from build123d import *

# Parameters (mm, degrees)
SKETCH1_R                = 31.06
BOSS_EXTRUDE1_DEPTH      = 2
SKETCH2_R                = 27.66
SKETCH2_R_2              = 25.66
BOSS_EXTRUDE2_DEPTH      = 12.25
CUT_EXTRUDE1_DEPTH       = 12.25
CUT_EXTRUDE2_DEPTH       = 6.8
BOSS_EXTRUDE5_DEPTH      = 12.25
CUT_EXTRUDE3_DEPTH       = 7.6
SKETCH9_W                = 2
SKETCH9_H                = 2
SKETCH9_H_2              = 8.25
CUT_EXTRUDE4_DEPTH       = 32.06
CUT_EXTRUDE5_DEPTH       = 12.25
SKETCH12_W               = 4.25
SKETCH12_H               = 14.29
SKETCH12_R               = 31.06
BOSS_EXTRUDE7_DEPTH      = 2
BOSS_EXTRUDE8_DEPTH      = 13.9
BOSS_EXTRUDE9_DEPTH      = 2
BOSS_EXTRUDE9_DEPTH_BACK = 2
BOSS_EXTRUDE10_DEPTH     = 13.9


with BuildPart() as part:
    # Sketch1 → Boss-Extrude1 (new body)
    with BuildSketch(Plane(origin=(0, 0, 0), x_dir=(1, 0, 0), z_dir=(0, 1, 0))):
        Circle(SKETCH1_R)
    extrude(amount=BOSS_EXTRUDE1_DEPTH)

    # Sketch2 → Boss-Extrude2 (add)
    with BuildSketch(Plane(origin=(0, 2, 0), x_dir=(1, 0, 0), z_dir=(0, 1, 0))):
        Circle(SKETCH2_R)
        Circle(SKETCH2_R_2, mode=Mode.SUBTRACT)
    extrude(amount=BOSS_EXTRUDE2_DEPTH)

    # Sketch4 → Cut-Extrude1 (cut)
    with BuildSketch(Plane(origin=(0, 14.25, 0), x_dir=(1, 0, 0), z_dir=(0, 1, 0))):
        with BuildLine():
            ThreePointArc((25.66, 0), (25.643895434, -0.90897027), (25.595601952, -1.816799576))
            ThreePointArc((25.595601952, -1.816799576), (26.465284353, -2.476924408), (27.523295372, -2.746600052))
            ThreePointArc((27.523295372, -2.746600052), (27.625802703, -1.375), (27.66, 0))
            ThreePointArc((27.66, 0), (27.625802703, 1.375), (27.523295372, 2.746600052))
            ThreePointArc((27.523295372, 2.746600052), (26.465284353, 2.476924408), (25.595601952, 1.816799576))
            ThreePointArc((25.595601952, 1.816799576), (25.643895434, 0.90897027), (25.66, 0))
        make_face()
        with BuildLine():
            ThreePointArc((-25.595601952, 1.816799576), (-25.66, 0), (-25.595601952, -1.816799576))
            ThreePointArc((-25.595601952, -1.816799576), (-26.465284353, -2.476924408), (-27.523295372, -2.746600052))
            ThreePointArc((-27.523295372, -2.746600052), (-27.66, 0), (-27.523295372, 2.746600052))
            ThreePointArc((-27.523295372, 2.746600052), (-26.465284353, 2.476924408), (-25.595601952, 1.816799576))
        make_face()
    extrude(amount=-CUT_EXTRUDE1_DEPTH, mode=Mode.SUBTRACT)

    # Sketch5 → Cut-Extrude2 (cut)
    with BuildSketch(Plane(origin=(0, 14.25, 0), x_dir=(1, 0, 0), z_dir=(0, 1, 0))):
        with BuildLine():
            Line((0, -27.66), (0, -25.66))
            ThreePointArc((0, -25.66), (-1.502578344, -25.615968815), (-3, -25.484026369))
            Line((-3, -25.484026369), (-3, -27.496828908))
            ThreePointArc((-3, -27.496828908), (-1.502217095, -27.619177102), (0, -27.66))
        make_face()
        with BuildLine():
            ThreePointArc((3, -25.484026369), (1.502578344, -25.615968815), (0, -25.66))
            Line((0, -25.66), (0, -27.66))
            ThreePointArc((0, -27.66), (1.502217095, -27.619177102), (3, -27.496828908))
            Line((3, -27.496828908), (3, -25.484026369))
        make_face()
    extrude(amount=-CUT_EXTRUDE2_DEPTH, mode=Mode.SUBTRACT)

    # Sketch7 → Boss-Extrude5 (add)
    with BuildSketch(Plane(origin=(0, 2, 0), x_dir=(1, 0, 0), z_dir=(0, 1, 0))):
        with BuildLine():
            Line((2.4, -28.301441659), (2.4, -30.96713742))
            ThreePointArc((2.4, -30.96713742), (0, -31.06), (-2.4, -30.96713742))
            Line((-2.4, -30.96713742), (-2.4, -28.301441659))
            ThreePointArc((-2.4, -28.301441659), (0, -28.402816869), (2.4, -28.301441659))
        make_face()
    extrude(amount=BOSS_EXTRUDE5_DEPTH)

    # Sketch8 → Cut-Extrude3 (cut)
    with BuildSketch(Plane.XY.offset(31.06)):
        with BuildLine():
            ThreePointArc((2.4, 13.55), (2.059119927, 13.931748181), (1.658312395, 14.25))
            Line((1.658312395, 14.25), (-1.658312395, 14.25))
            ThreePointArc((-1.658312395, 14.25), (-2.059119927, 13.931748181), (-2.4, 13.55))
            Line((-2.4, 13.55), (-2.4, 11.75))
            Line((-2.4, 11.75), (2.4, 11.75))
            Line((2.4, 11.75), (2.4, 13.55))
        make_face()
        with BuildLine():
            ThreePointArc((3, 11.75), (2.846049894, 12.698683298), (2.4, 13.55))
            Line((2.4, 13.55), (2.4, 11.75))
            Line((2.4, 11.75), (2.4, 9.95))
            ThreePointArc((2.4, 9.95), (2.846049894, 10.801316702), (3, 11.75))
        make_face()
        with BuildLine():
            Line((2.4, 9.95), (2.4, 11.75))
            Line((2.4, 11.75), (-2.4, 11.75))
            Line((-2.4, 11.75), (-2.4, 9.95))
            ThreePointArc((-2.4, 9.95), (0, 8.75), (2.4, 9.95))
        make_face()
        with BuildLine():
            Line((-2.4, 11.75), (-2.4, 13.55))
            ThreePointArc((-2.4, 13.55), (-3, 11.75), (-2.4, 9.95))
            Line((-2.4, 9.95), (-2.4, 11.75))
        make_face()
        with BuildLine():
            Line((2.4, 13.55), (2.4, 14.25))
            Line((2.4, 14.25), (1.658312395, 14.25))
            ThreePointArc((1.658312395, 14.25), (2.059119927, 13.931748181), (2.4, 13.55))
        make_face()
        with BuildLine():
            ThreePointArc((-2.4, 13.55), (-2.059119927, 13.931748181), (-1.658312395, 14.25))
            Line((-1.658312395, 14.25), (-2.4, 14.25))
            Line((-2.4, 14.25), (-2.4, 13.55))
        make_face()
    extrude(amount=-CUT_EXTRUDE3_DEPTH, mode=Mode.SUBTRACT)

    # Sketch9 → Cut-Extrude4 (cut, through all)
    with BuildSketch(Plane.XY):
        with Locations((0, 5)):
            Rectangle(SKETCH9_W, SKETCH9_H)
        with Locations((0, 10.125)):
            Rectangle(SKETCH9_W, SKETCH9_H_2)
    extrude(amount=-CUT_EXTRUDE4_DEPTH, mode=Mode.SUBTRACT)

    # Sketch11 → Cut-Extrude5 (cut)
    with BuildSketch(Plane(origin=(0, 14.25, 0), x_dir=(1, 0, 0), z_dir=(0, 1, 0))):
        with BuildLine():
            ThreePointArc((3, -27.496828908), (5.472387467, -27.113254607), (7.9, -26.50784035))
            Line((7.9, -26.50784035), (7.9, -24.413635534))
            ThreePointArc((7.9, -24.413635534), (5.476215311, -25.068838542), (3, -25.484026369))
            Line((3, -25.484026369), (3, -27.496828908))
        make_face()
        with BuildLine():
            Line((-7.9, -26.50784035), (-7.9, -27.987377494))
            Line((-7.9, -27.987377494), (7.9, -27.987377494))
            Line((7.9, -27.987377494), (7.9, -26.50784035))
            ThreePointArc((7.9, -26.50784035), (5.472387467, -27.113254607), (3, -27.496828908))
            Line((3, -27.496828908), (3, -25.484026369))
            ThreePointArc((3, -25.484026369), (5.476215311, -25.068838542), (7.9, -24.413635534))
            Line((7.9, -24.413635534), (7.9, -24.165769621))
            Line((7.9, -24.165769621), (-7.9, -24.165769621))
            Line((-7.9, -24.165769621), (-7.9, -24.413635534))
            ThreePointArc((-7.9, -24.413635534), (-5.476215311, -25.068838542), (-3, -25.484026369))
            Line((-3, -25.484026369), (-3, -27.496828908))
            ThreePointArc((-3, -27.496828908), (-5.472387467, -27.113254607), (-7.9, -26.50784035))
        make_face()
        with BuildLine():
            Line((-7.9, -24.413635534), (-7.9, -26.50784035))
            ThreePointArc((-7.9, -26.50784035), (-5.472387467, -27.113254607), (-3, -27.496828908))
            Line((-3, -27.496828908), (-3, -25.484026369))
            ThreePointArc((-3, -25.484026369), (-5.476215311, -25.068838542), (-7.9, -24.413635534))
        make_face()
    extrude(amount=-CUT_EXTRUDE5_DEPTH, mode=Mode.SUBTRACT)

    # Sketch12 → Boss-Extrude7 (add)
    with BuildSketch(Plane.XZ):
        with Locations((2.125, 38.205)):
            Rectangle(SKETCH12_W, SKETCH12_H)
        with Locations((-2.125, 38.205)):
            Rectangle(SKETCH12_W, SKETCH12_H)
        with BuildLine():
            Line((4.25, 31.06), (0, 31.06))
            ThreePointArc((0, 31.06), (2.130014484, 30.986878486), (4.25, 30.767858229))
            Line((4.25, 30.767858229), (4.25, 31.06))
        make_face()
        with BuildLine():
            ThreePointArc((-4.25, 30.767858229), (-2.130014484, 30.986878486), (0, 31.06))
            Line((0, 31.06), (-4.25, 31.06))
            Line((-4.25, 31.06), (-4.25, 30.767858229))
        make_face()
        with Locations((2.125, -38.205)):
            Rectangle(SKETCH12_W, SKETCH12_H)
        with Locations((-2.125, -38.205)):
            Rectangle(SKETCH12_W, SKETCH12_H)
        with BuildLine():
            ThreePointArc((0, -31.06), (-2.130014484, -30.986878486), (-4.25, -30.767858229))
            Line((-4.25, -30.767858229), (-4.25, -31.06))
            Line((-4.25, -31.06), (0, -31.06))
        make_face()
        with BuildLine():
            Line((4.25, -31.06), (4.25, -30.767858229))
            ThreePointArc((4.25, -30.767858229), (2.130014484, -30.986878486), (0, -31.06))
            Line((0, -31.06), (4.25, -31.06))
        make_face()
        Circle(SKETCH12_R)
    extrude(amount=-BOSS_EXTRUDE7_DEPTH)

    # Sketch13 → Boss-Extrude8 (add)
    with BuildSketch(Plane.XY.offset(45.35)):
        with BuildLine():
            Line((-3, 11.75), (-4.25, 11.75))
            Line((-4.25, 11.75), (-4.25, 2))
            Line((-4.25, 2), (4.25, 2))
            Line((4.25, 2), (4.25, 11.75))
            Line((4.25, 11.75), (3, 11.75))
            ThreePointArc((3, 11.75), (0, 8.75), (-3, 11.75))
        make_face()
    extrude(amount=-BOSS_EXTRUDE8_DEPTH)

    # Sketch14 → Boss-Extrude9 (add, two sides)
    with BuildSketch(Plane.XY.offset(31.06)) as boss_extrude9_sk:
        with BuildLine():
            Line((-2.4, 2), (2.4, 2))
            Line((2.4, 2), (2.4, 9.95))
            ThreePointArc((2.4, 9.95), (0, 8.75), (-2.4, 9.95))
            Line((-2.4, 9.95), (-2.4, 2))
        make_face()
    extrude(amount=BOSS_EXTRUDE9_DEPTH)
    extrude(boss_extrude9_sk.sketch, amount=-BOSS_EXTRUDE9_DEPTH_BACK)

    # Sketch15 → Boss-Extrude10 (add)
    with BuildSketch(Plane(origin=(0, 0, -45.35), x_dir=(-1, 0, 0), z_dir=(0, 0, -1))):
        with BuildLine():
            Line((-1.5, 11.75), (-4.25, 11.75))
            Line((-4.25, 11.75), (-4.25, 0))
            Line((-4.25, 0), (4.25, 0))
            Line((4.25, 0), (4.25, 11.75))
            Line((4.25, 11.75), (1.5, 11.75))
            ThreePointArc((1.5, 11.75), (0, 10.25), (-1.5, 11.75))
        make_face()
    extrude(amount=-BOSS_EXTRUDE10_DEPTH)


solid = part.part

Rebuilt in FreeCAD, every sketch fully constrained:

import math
import FreeCAD as App
import Part
import Sketcher

doc = App.newDocument("Part")
body = doc.addObject("PartDesign::Body", "Body")

sketch1 = body.newObject("Sketcher::SketchObject", "Sketch")
sketch1.AttachmentSupport = (doc.getObject("XZ_Plane"), [""])
sketch1.MapMode = "FlatFace"
sketch1.addGeometry(Part.Circle(App.Vector(0, 0, 0), App.Vector(0, 0, 1), 31), False)
sketch1.addConstraint(Sketcher.Constraint("Coincident", 0, 3, -1, 1))
sketch1.addConstraint(Sketcher.Constraint("Diameter", 0, 62.12))
pad1 = body.newObject("PartDesign::Pad", "Pad")
pad1.Profile = sketch1
pad1.Length = 2
pad1.Reversed = True

sketch2 = body.newObject("Sketcher::SketchObject", "Sketch001")
sketch2.AttachmentSupport = (doc.getObject("XZ_Plane"), [""])
sketch2.MapMode = "FlatFace"
sketch2.AttachmentOffset = App.Placement(App.Vector(0, 0, -2), App.Rotation())
sketch2.addGeometry(Part.Circle(App.Vector(0, 0, 0), App.Vector(0, 0, 1), 28), False)
sketch2.addGeometry(Part.Circle(App.Vector(0, 0, 0), App.Vector(0, 0, 1), 26), False)
sketch2.addConstraint(Sketcher.Constraint("Coincident", 0, 3, -1, 1))
sketch2.addConstraint(Sketcher.Constraint("Coincident", 1, 3, -1, 1))
sketch2.addConstraint(Sketcher.Constraint("Diameter", 0, 55.32))
sketch2.addConstraint(Sketcher.Constraint("Diameter", 1, 51.32))
pad2 = body.newObject("PartDesign::Pad", "Pad001")
pad2.Profile = sketch2
pad2.Length = 12.25
pad2.Reversed = True

sketch3 = body.newObject("Sketcher::SketchObject", "Sketch002")
sketch3.AttachmentSupport = (doc.getObject("XZ_Plane"), [""])
sketch3.MapMode = "FlatFace"
sketch3.AttachmentOffset = App.Placement(App.Vector(0, 0, -14.25), App.Rotation())
sketch3.addGeometry(Part.ArcOfCircle(Part.Circle(App.Vector(0, 0, 0), App.Vector(0, 0, 1), 25.7), math.radians(0), math.radians(4.06)), False)
sketch3.addGeometry(Part.ArcOfCircle(Part.Circle(App.Vector(27.7, 0, 0), App.Vector(0, 0, 1), 2.8), math.radians(93), math.radians(139)), False)
sketch3.addGeometry(Part.ArcOfCircle(Part.Circle(App.Vector(0, 0, 0), App.Vector(0, 0, 1), 27.7), math.radians(0), math.radians(5.7)), False)
sketch3.addGeometry(Part.ArcOfCircle(Part.Circle(App.Vector(0, 0, 0), App.Vector(0, 0, 1), 27.7), math.radians(-5.7), math.radians(0)), False)
sketch3.addGeometry(Part.ArcOfCircle(Part.Circle(App.Vector(27.7, 0, 0), App.Vector(0, 0, 1), 2.8), math.radians(-139), math.radians(-93)), False)
sketch3.addGeometry(Part.ArcOfCircle(Part.Circle(App.Vector(0, 0, 0), App.Vector(0, 0, 1), 25.7), math.radians(-4.06), math.radians(0)), False)
sketch3.addGeometry(Part.ArcOfCircle(Part.Circle(App.Vector(0, 0, 0), App.Vector(0, 0, 1), 25.7), math.radians(175.94), math.radians(184.06)), False)
sketch3.addGeometry(Part.ArcOfCircle(Part.Circle(App.Vector(-27.7, 0, 0), App.Vector(0, 0, 1), 2.8), math.radians(-87), math.radians(-41)), False)
sketch3.addGeometry(Part.ArcOfCircle(Part.Circle(App.Vector(0, 0, 0), App.Vector(0, 0, 1), 27.7), math.radians(174.3), math.radians(185.7)), False)
sketch3.addGeometry(Part.ArcOfCircle(Part.Circle(App.Vector(-27.7, 0, 0), App.Vector(0, 0, 1), 2.8), math.radians(41), math.radians(87)), False)
sketch3.addConstraint(Sketcher.Constraint("Coincident", 0, 2, 1, 2))
sketch3.addConstraint(Sketcher.Constraint("Coincident", 1, 1, 2, 2))
sketch3.addConstraint(Sketcher.Constraint("Tangent", 2, 1, 3, 2))
sketch3.addConstraint(Sketcher.Constraint("Coincident", 3, 1, 4, 2))
sketch3.addConstraint(Sketcher.Constraint("Coincident", 4, 1, 5, 1))
sketch3.addConstraint(Sketcher.Constraint("Tangent", 5, 2, 0, 1))
sketch3.addConstraint(Sketcher.Constraint("Coincident", 6, 2, 7, 2))
sketch3.addConstraint(Sketcher.Constraint("Coincident", 7, 1, 8, 2))
sketch3.addConstraint(Sketcher.Constraint("Coincident", 8, 1, 9, 2))
sketch3.addConstraint(Sketcher.Constraint("Coincident", 9, 1, 6, 1))
sketch3.addConstraint(Sketcher.Constraint("Coincident", 0, 3, -1, 1))
sketch3.addConstraint(Sketcher.Constraint("Coincident", 2, 3, -1, 1))
sketch3.addConstraint(Sketcher.Constraint("Coincident", 6, 3, -1, 1))
sketch3.addConstraint(Sketcher.Constraint("Coincident", 8, 3, -1, 1))
sketch3.addConstraint(Sketcher.Constraint("Coincident", 4, 3, 1, 3))
sketch3.addConstraint(Sketcher.Constraint("Coincident", 9, 3, 7, 3))
sketch3.addConstraint(Sketcher.Constraint("Coincident", 2, 1, 1, 3))
sketch3.addConstraint(Sketcher.Constraint("Equal", 2, 3))
sketch3.addConstraint(Sketcher.Constraint("Equal", 1, 4))
sketch3.addConstraint(Sketcher.Constraint("Equal", 0, 5))
sketch3.addConstraint(Sketcher.Constraint("Equal", 5, 6))
sketch3.addConstraint(Sketcher.Constraint("Equal", 4, 7))
sketch3.addConstraint(Sketcher.Constraint("Equal", 3, 8))
sketch3.addConstraint(Sketcher.Constraint("Equal", 7, 9))
sketch3.addConstraint(Sketcher.Constraint("Symmetric", 1, 3, 7, 3, -1, 1))
sketch3.addConstraint(Sketcher.Constraint("PointOnObject", 1, 3, -1))
sketch3.addConstraint(Sketcher.Constraint("PointOnObject", 5, 2, -1))
sketch3.addConstraint(Sketcher.Constraint("Radius", 0, 25.66))
sketch3.addConstraint(Sketcher.Constraint("Radius", 1, 2.75))
sketch3.addConstraint(Sketcher.Constraint("Radius", 2, 27.66))
pocket1 = body.newObject("PartDesign::Pocket", "Pocket")
pocket1.Profile = sketch3
pocket1.Length = 12.25
pocket1.Reversed = True

sketch4 = body.newObject("Sketcher::SketchObject", "Sketch003")
sketch4.AttachmentSupport = (doc.getObject("XZ_Plane"), [""])
sketch4.MapMode = "FlatFace"
sketch4.AttachmentOffset = App.Placement(App.Vector(0, 0, -14.25), App.Rotation())
sketch4.addGeometry(Part.ArcOfCircle(Part.Circle(App.Vector(0, 0, 0), App.Vector(0, 0, 1), 25.7), math.radians(90), math.radians(96.71)), False)
sketch4.addGeometry(Part.LineSegment(App.Vector(-3, 25.5, 0), App.Vector(-3, 27.5, 0)), False)
sketch4.addGeometry(Part.ArcOfCircle(Part.Circle(App.Vector(0, 0, 0), App.Vector(0, 0, 1), 27.7), math.radians(90), math.radians(96.23)), False)
sketch4.addGeometry(Part.ArcOfCircle(Part.Circle(App.Vector(0, 0, 0), App.Vector(0, 0, 1), 27.7), math.radians(83.77), math.radians(90)), False)
sketch4.addGeometry(Part.LineSegment(App.Vector(3, 27.5, 0), App.Vector(3, 25.5, 0)), False)
sketch4.addGeometry(Part.ArcOfCircle(Part.Circle(App.Vector(0, 0, 0), App.Vector(0, 0, 1), 25.7), math.radians(83.29), math.radians(90)), False)
sketch4.addConstraint(Sketcher.Constraint("Coincident", 0, 2, 1, 1))
sketch4.addConstraint(Sketcher.Constraint("Coincident", 1, 2, 2, 2))
sketch4.addConstraint(Sketcher.Constraint("Tangent", 2, 1, 3, 2))
sketch4.addConstraint(Sketcher.Constraint("Coincident", 3, 1, 4, 1))
sketch4.addConstraint(Sketcher.Constraint("Coincident", 4, 2, 5, 1))
sketch4.addConstraint(Sketcher.Constraint("Tangent", 5, 2, 0, 1))
sketch4.addConstraint(Sketcher.Constraint("Vertical", 1))
sketch4.addConstraint(Sketcher.Constraint("Vertical", 4))
sketch4.addConstraint(Sketcher.Constraint("Coincident", 0, 3, -1, 1))
sketch4.addConstraint(Sketcher.Constraint("Coincident", 2, 3, -1, 1))
sketch4.addConstraint(Sketcher.Constraint("Equal", 2, 3))
sketch4.addConstraint(Sketcher.Constraint("Equal", 0, 5))
sketch4.addConstraint(Sketcher.Constraint("PointOnObject", 2, 1, -2))
sketch4.addConstraint(Sketcher.Constraint("PointOnObject", 5, 2, -2))
sketch4.addConstraint(Sketcher.Constraint("Horizontal", 1, 2, 3, 1))
sketch4.addConstraint(Sketcher.Constraint("Radius", 0, 25.66))
sketch4.addConstraint(Sketcher.Constraint("Radius", 2, 27.66))
sketch4.addConstraint(Sketcher.Constraint("DistanceX", 0, 2, -1, 1, 3.0))
pocket2 = body.newObject("PartDesign::Pocket", "Pocket001")
pocket2.Profile = sketch4
pocket2.Length = 6.8
pocket2.Reversed = True

sketch5 = body.newObject("Sketcher::SketchObject", "Sketch004")
sketch5.AttachmentSupport = (doc.getObject("XZ_Plane"), [""])
sketch5.MapMode = "FlatFace"
sketch5.AttachmentOffset = App.Placement(App.Vector(0, 0, -2), App.Rotation())
sketch5.addGeometry(Part.LineSegment(App.Vector(2.4, 31, 0), App.Vector(2.4, 28.3, 0)), False)
sketch5.addGeometry(Part.ArcOfCircle(Part.Circle(App.Vector(0, -0.1, 0), App.Vector(0, 0, 1), 28.5), math.radians(85.16), math.radians(94.84)), False)
sketch5.addGeometry(Part.LineSegment(App.Vector(-2.4, 28.3, 0), App.Vector(-2.4, 31, 0)), False)
sketch5.addGeometry(Part.ArcOfCircle(Part.Circle(App.Vector(0, 0, 0), App.Vector(0, 0, 1), 31.1), math.radians(85.57), math.radians(94.43)), False)
sketch5.addConstraint(Sketcher.Constraint("Coincident", 0, 2, 1, 1))
sketch5.addConstraint(Sketcher.Constraint("Coincident", 1, 2, 2, 1))
sketch5.addConstraint(Sketcher.Constraint("Coincident", 2, 2, 3, 2))
sketch5.addConstraint(Sketcher.Constraint("Coincident", 3, 1, 0, 1))
sketch5.addConstraint(Sketcher.Constraint("Vertical", 0))
sketch5.addConstraint(Sketcher.Constraint("Vertical", 2))
sketch5.addConstraint(Sketcher.Constraint("Coincident", 3, 3, -1, 1))
sketch5.addConstraint(Sketcher.Constraint("Symmetric", 0, 2, 1, 2, -2))
sketch5.addConstraint(Sketcher.Constraint("Radius", 1, 28.46))
sketch5.addConstraint(Sketcher.Constraint("Radius", 3, 31.06))
sketch5.addConstraint(Sketcher.Constraint("DistanceX", -1, 1, 0, 2, 2.4))
sketch5.addConstraint(Sketcher.Constraint("DistanceY", 0, 2, 0, 1, 2.665696))
pad3 = body.newObject("PartDesign::Pad", "Pad002")
pad3.Profile = sketch5
pad3.Length = 12.25
pad3.Reversed = True

sketch6 = body.newObject("Sketcher::SketchObject", "Sketch005")
sketch6.AttachmentSupport = (doc.getObject("XY_Plane"), [""])
sketch6.MapMode = "FlatFace"
sketch6.AttachmentOffset = App.Placement(App.Vector(0, 0, 31.06), App.Rotation())
sketch6.addGeometry(Part.ArcOfCircle(Part.Circle(App.Vector(0, 11.8, 0), App.Vector(0, 0, 1), 3), math.radians(143), math.radians(323)), False)
sketch6.addGeometry(Part.ArcOfCircle(Part.Circle(App.Vector(0, 11.8, 0), App.Vector(0, 0, 1), 3), math.radians(-37), math.radians(0)), False)
sketch6.addGeometry(Part.ArcOfCircle(Part.Circle(App.Vector(0, 11.7, 0), App.Vector(0, 0, 1), 3), math.radians(0), math.radians(37)), False)
sketch6.addGeometry(Part.LineSegment(App.Vector(2.4, 13.6, 0), App.Vector(2.4, 14.2, 0)), False)
sketch6.addGeometry(Part.LineSegment(App.Vector(2.4, 14.2, 0), App.Vector(-2.4, 14.2, 0)), False)
sketch6.addGeometry(Part.LineSegment(App.Vector(-2.4, 14.2, 0), App.Vector(-2.4, 13.6, 0)), False)
sketch6.addConstraint(Sketcher.Constraint("Tangent", 0, 2, 1, 1))
sketch6.addConstraint(Sketcher.Constraint("Tangent", 1, 2, 2, 1))
sketch6.addConstraint(Sketcher.Constraint("Coincident", 2, 2, 3, 1))
sketch6.addConstraint(Sketcher.Constraint("Coincident", 3, 2, 4, 1))
sketch6.addConstraint(Sketcher.Constraint("Coincident", 4, 2, 5, 1))
sketch6.addConstraint(Sketcher.Constraint("Coincident", 5, 2, 0, 1))
sketch6.addConstraint(Sketcher.Constraint("Vertical", 3))
sketch6.addConstraint(Sketcher.Constraint("Horizontal", 4))
sketch6.addConstraint(Sketcher.Constraint("Vertical", 5))
sketch6.addConstraint(Sketcher.Constraint("Coincident", 2, 3, 0, 3))
sketch6.addConstraint(Sketcher.Constraint("Symmetric", 2, 2, 5, 2, -2))
sketch6.addConstraint(Sketcher.Constraint("Horizontal", 2, 3, 1, 2))
sketch6.addConstraint(Sketcher.Constraint("Vertical", 0, 2, 2, 2))
sketch6.addConstraint(Sketcher.Constraint("Radius", 0, 3.0))
sketch6.addConstraint(Sketcher.Constraint("DistanceX", 4, 2, 4, 1, 4.8))
sketch6.addConstraint(Sketcher.Constraint("DistanceY", 3, 1, 3, 2, 0.7))
sketch6.addConstraint(Sketcher.Constraint("DistanceY", -1, 1, 0, 3, 11.75))
pocket3 = body.newObject("PartDesign::Pocket", "Pocket002")
pocket3.Profile = sketch6
pocket3.Length = 7.6

sketch7 = body.newObject("Sketcher::SketchObject", "Sketch006")
sketch7.AttachmentSupport = (doc.getObject("XY_Plane"), [""])
sketch7.MapMode = "FlatFace"
sketch7.addGeometry(Part.LineSegment(App.Vector(-1, 4, 0), App.Vector(1, 4, 0)), False)
sketch7.addGeometry(Part.LineSegment(App.Vector(1, 4, 0), App.Vector(1, 14.2, 0)), False)
sketch7.addGeometry(Part.LineSegment(App.Vector(1, 14.2, 0), App.Vector(-1, 14.2, 0)), False)
sketch7.addGeometry(Part.LineSegment(App.Vector(-1, 14.2, 0), App.Vector(-1, 4, 0)), False)
sketch7.addConstraint(Sketcher.Constraint("Coincident", 0, 2, 1, 1))
sketch7.addConstraint(Sketcher.Constraint("Coincident", 1, 2, 2, 1))
sketch7.addConstraint(Sketcher.Constraint("Coincident", 2, 2, 3, 1))
sketch7.addConstraint(Sketcher.Constraint("Coincident", 3, 2, 0, 1))
sketch7.addConstraint(Sketcher.Constraint("Horizontal", 0))
sketch7.addConstraint(Sketcher.Constraint("Vertical", 1))
sketch7.addConstraint(Sketcher.Constraint("Horizontal", 2))
sketch7.addConstraint(Sketcher.Constraint("Vertical", 3))
sketch7.addConstraint(Sketcher.Constraint("DistanceX", 0, 1, 0, 2, 2.0))
sketch7.addConstraint(Sketcher.Constraint("DistanceX", -1, 1, 0, 2, 1.0))
sketch7.addConstraint(Sketcher.Constraint("DistanceY", -1, 1, 0, 2, 4.0))
sketch7.addConstraint(Sketcher.Constraint("DistanceY", 1, 1, 1, 2, 10.25))
pocket4 = body.newObject("PartDesign::Pocket", "Pocket003")
pocket4.Profile = sketch7
pocket4.Type = "ThroughAll"

sketch8 = body.newObject("Sketcher::SketchObject", "Sketch007")
sketch8.AttachmentSupport = (doc.getObject("XZ_Plane"), [""])
sketch8.MapMode = "FlatFace"
sketch8.AttachmentOffset = App.Placement(App.Vector(0, 0, -14.25), App.Rotation())
sketch8.addGeometry(Part.LineSegment(App.Vector(7.9, 24.2, 0), App.Vector(-7.9, 24.2, 0)), False)
sketch8.addGeometry(Part.LineSegment(App.Vector(-7.9, 24.2, 0), App.Vector(-7.9, 28, 0)), False)
sketch8.addGeometry(Part.LineSegment(App.Vector(-7.9, 28, 0), App.Vector(7.9, 28, 0)), False)
sketch8.addGeometry(Part.LineSegment(App.Vector(7.9, 28, 0), App.Vector(7.9, 24.2, 0)), False)
sketch8.addConstraint(Sketcher.Constraint("Coincident", 0, 2, 1, 1))
sketch8.addConstraint(Sketcher.Constraint("Coincident", 1, 2, 2, 1))
sketch8.addConstraint(Sketcher.Constraint("Coincident", 2, 2, 3, 1))
sketch8.addConstraint(Sketcher.Constraint("Coincident", 3, 2, 0, 1))
sketch8.addConstraint(Sketcher.Constraint("Horizontal", 0))
sketch8.addConstraint(Sketcher.Constraint("Vertical", 1))
sketch8.addConstraint(Sketcher.Constraint("Horizontal", 2))
sketch8.addConstraint(Sketcher.Constraint("Vertical", 3))
sketch8.addConstraint(Sketcher.Constraint("DistanceX", 0, 2, 0, 1, 15.8))
sketch8.addConstraint(Sketcher.Constraint("DistanceX", 0, 2, -1, 1, 7.9))
sketch8.addConstraint(Sketcher.Constraint("DistanceY", 1, 1, 1, 2, 3.821608))
sketch8.addConstraint(Sketcher.Constraint("DistanceY", -1, 1, 0, 2, 24.16577))
pocket5 = body.newObject("PartDesign::Pocket", "Pocket004")
pocket5.Profile = sketch8
pocket5.Length = 12.25
pocket5.Reversed = True

sketch9 = body.newObject("Sketcher::SketchObject", "Sketch008")
sketch9.AttachmentSupport = (doc.getObject("XZ_Plane"), [""])
sketch9.MapMode = "FlatFace"
sketch9.addGeometry(Part.LineSegment(App.Vector(4, 45, 0), App.Vector(-4, 45, 0)), False)
sketch9.addGeometry(Part.LineSegment(App.Vector(-4, 45, 0), App.Vector(-4, 31, 0)), False)
sketch9.addGeometry(Part.ArcOfCircle(Part.Circle(App.Vector(0, 0, 0), App.Vector(0, 0, 1), 31), math.radians(98), math.radians(262)), False)
sketch9.addGeometry(Part.LineSegment(App.Vector(-4, -31, 0), App.Vector(-4, -45, 0)), False)
sketch9.addGeometry(Part.LineSegment(App.Vector(-4, -45, 0), App.Vector(4, -45, 0)), False)
sketch9.addGeometry(Part.LineSegment(App.Vector(4, -45, 0), App.Vector(4, -31, 0)), False)
sketch9.addGeometry(Part.ArcOfCircle(Part.Circle(App.Vector(0, 0, 0), App.Vector(0, 0, 1), 31), math.radians(-82), math.radians(82)), False)
sketch9.addGeometry(Part.LineSegment(App.Vector(4, 31, 0), App.Vector(4, 45, 0)), False)
sketch9.addConstraint(Sketcher.Constraint("Coincident", 0, 2, 1, 1))
sketch9.addConstraint(Sketcher.Constraint("Coincident", 1, 2, 2, 1))
sketch9.addConstraint(Sketcher.Constraint("Coincident", 2, 2, 3, 1))
sketch9.addConstraint(Sketcher.Constraint("Coincident", 3, 2, 4, 1))
sketch9.addConstraint(Sketcher.Constraint("Coincident", 4, 2, 5, 1))
sketch9.addConstraint(Sketcher.Constraint("Coincident", 5, 2, 6, 1))
sketch9.addConstraint(Sketcher.Constraint("Coincident", 6, 2, 7, 1))
sketch9.addConstraint(Sketcher.Constraint("Coincident", 7, 2, 0, 1))
sketch9.addConstraint(Sketcher.Constraint("Horizontal", 0))
sketch9.addConstraint(Sketcher.Constraint("Vertical", 1))
sketch9.addConstraint(Sketcher.Constraint("Vertical", 3))
sketch9.addConstraint(Sketcher.Constraint("Horizontal", 4))
sketch9.addConstraint(Sketcher.Constraint("Vertical", 5))
sketch9.addConstraint(Sketcher.Constraint("Vertical", 7))
sketch9.addConstraint(Sketcher.Constraint("Coincident", 2, 3, -1, 1))
sketch9.addConstraint(Sketcher.Constraint("Coincident", 6, 3, -1, 1))
sketch9.addConstraint(Sketcher.Constraint("Equal", 2, 6))
sketch9.addConstraint(Sketcher.Constraint("Symmetric", 0, 2, 4, 2, -1, 1))
sketch9.addConstraint(Sketcher.Constraint("Horizontal", 2, 2, 5, 2))
sketch9.addConstraint(Sketcher.Constraint("Horizontal", 1, 2, 6, 2))
sketch9.addConstraint(Sketcher.Constraint("Radius", 2, 31.06))
sketch9.addConstraint(Sketcher.Constraint("DistanceX", 0, 2, 0, 1, 8.5))
sketch9.addConstraint(Sketcher.Constraint("DistanceY", 3, 2, 0, 2, 90.7))
pad4 = body.newObject("PartDesign::Pad", "Pad003")
pad4.Profile = sketch9
pad4.Length = 2
pad4.Reversed = True

sketch10 = body.newObject("Sketcher::SketchObject", "Sketch009")
sketch10.AttachmentSupport = (doc.getObject("XY_Plane"), [""])
sketch10.MapMode = "FlatFace"
sketch10.AttachmentOffset = App.Placement(App.Vector(0, 0, 45.35), App.Rotation())
sketch10.addGeometry(Part.LineSegment(App.Vector(-3, 11.8, 0), App.Vector(-4.2, 11.8, 0)), False)
sketch10.addGeometry(Part.LineSegment(App.Vector(-4.2, 11.8, 0), App.Vector(-4.2, 2, 0)), False)
sketch10.addGeometry(Part.LineSegment(App.Vector(-4.2, 2, 0), App.Vector(4.2, 2, 0)), False)
sketch10.addGeometry(Part.LineSegment(App.Vector(4.2, 2, 0), App.Vector(4.2, 11.8, 0)), False)
sketch10.addGeometry(Part.LineSegment(App.Vector(4.2, 11.8, 0), App.Vector(3, 11.8, 0)), False)
sketch10.addGeometry(Part.ArcOfCircle(Part.Circle(App.Vector(0, 11.8, 0), App.Vector(0, 0, 1), 3), math.radians(180), math.radians(360)), False)
sketch10.addConstraint(Sketcher.Constraint("Coincident", 0, 2, 1, 1))
sketch10.addConstraint(Sketcher.Constraint("Coincident", 1, 2, 2, 1))
sketch10.addConstraint(Sketcher.Constraint("Coincident", 2, 2, 3, 1))
sketch10.addConstraint(Sketcher.Constraint("Coincident", 3, 2, 4, 1))
sketch10.addConstraint(Sketcher.Constraint("Coincident", 4, 2, 5, 2))
sketch10.addConstraint(Sketcher.Constraint("Coincident", 5, 1, 0, 1))
sketch10.addConstraint(Sketcher.Constraint("Horizontal", 0))
sketch10.addConstraint(Sketcher.Constraint("Vertical", 1))
sketch10.addConstraint(Sketcher.Constraint("Horizontal", 2))
sketch10.addConstraint(Sketcher.Constraint("Vertical", 3))
sketch10.addConstraint(Sketcher.Constraint("Horizontal", 4))
sketch10.addConstraint(Sketcher.Constraint("Symmetric", 0, 2, 3, 2, -2))
sketch10.addConstraint(Sketcher.Constraint("PointOnObject", 5, 3, -2))
sketch10.addConstraint(Sketcher.Constraint("Horizontal", 5, 3, 0, 2))
sketch10.addConstraint(Sketcher.Constraint("Radius", 5, 3.0))
sketch10.addConstraint(Sketcher.Constraint("DistanceX", 2, 1, 2, 2, 8.5))
sketch10.addConstraint(Sketcher.Constraint("DistanceY", -1, 1, 1, 2, 2.0))
sketch10.addConstraint(Sketcher.Constraint("DistanceY", 1, 2, 1, 1, 9.75))
pad5 = body.newObject("PartDesign::Pad", "Pad004")
pad5.Profile = sketch10
pad5.Length = 13.9
pad5.Reversed = True

sketch11 = body.newObject("Sketcher::SketchObject", "Sketch010")
sketch11.AttachmentSupport = (doc.getObject("XY_Plane"), [""])
sketch11.MapMode = "FlatFace"
sketch11.AttachmentOffset = App.Placement(App.Vector(0, 0, 31.06), App.Rotation())
sketch11.addGeometry(Part.LineSegment(App.Vector(-2.4, 2, 0), App.Vector(2.4, 2, 0)), False)
sketch11.addGeometry(Part.LineSegment(App.Vector(2.4, 2, 0), App.Vector(2.4, 9.9, 0)), False)
sketch11.addGeometry(Part.ArcOfCircle(Part.Circle(App.Vector(0, 11.8, 0), App.Vector(0, 0, 1), 3), math.radians(-143), math.radians(-37)), False)
sketch11.addGeometry(Part.LineSegment(App.Vector(-2.4, 9.9, 0), App.Vector(-2.4, 2, 0)), False)
sketch11.addConstraint(Sketcher.Constraint("Coincident", 0, 2, 1, 1))
sketch11.addConstraint(Sketcher.Constraint("Coincident", 1, 2, 2, 2))
sketch11.addConstraint(Sketcher.Constraint("Coincident", 2, 1, 3, 1))
sketch11.addConstraint(Sketcher.Constraint("Coincident", 3, 2, 0, 1))
sketch11.addConstraint(Sketcher.Constraint("Horizontal", 0))
sketch11.addConstraint(Sketcher.Constraint("Vertical", 1))
sketch11.addConstraint(Sketcher.Constraint("Vertical", 3))
sketch11.addConstraint(Sketcher.Constraint("Symmetric", 1, 2, 2, 1, -2))
sketch11.addConstraint(Sketcher.Constraint("Radius", 2, 3.0))
sketch11.addConstraint(Sketcher.Constraint("DistanceX", 0, 1, 0, 2, 4.8))
sketch11.addConstraint(Sketcher.Constraint("DistanceY", -1, 1, 0, 2, 2.0))
sketch11.addConstraint(Sketcher.Constraint("DistanceY", 1, 1, 1, 2, 7.95))
pad6 = body.newObject("PartDesign::Pad", "Pad005")
pad6.Profile = sketch11
pad6.Type = "TwoLengths"
pad6.Length = 2
pad6.Length2 = 2

sketch12 = body.newObject("Sketcher::SketchObject", "Sketch011")
sketch12.AttachmentSupport = (doc.getObject("XY_Plane"), [""])
sketch12.MapMode = "FlatFace"
sketch12.AttachmentOffset = App.Placement(App.Vector(0, 0, -45.35), App.Rotation())
sketch12.addGeometry(Part.LineSegment(App.Vector(1.5, 11.8, 0), App.Vector(4.2, 11.8, 0)), False)
sketch12.addGeometry(Part.LineSegment(App.Vector(4.2, 11.8, 0), App.Vector(4.2, 0, 0)), False)
sketch12.addGeometry(Part.LineSegment(App.Vector(4.2, 0, 0), App.Vector(-4.2, 0, 0)), False)
sketch12.addGeometry(Part.LineSegment(App.Vector(-4.2, 0, 0), App.Vector(-4.2, 11.8, 0)), False)
sketch12.addGeometry(Part.LineSegment(App.Vector(-4.2, 11.8, 0), App.Vector(-1.5, 11.8, 0)), False)
sketch12.addGeometry(Part.ArcOfCircle(Part.Circle(App.Vector(0, 11.8, 0), App.Vector(0, 0, 1), 1.5), math.radians(180), math.radians(360)), False)
sketch12.addConstraint(Sketcher.Constraint("Coincident", 0, 2, 1, 1))
sketch12.addConstraint(Sketcher.Constraint("Coincident", 1, 2, 2, 1))
sketch12.addConstraint(Sketcher.Constraint("Coincident", 2, 2, 3, 1))
sketch12.addConstraint(Sketcher.Constraint("Coincident", 3, 2, 4, 1))
sketch12.addConstraint(Sketcher.Constraint("Coincident", 4, 2, 5, 1))
sketch12.addConstraint(Sketcher.Constraint("Coincident", 5, 2, 0, 1))
sketch12.addConstraint(Sketcher.Constraint("Horizontal", 0))
sketch12.addConstraint(Sketcher.Constraint("Vertical", 1))
sketch12.addConstraint(Sketcher.Constraint("Horizontal", 2))
sketch12.addConstraint(Sketcher.Constraint("Vertical", 3))
sketch12.addConstraint(Sketcher.Constraint("Horizontal", 4))
sketch12.addConstraint(Sketcher.Constraint("Symmetric", 1, 2, 2, 2, -1, 1))
sketch12.addConstraint(Sketcher.Constraint("Symmetric", 4, 2, 5, 2, -2))
sketch12.addConstraint(Sketcher.Constraint("Horizontal", 5, 3, 0, 2))
sketch12.addConstraint(Sketcher.Constraint("Radius", 5, 1.5))
sketch12.addConstraint(Sketcher.Constraint("DistanceX", 2, 2, 2, 1, 8.5))
sketch12.addConstraint(Sketcher.Constraint("DistanceY", 1, 2, 1, 1, 11.75))
pad7 = body.newObject("PartDesign::Pad", "Pad006")
pad7.Profile = sketch12
pad7.Length = 13.9

doc.recompute()
